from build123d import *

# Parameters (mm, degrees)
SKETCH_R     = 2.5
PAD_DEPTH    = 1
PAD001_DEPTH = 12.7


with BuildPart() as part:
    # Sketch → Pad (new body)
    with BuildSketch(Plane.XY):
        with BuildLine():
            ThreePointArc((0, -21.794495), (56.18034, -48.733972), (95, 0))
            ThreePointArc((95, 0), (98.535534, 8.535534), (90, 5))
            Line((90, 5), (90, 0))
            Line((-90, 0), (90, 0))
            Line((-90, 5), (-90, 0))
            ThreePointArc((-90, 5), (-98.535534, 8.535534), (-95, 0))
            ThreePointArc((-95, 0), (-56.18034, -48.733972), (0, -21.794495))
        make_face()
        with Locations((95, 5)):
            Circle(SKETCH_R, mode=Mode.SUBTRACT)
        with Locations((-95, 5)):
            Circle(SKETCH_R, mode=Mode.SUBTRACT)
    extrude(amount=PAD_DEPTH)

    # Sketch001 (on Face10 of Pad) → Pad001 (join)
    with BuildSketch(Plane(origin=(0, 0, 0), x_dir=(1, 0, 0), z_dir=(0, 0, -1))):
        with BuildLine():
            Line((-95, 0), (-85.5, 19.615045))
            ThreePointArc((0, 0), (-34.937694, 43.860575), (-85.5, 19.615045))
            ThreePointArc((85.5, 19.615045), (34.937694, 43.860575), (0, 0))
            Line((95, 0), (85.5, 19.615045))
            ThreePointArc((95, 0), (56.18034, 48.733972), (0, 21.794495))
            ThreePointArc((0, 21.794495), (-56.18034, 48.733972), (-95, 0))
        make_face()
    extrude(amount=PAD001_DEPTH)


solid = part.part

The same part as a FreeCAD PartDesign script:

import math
import FreeCAD as App
import Part
import Sketcher

V = App.Vector
Q = App.Units.Quantity

doc = App.newDocument("Part")
body = doc.addObject("PartDesign::Body", "Body")

sketch1 = body.newObject("Sketcher::SketchObject", "Sketch")
sketch1.AttachmentSupport = (doc.getObject("XY_Plane"), [""])
sketch1.MapMode = "FlatFace"
sketch1.addGeometry(Part.ArcOfCircle(Part.Circle(V(45, 0, 0), V(0, 0, 1), 50), math.radians(-154), math.radians(0)), False)
sketch1.addGeometry(Part.ArcOfCircle(Part.Circle(V(95, 5, 0), V(0, 0, 1), 5), math.radians(-90), math.radians(180)), False)
sketch1.addGeometry(Part.LineSegment(V(90, 5, 0), V(90, 0, 0)), False)
sketch1.addGeometry(Part.LineSegment(V(90, 0, 0), V(-90, 0, 0)), False)
sketch1.addGeometry(Part.LineSegment(V(-90, 0, 0), V(-90, 5, 0)), False)
sketch1.addGeometry(Part.ArcOfCircle(Part.Circle(V(-95, 5, 0), V(0, 0, 1), 5), math.radians(0), math.radians(270)), False)
sketch1.addGeometry(Part.ArcOfCircle(Part.Circle(V(-45, 0, 0), V(0, 0, 1), 50), math.radians(180), math.radians(334)), False)
sketch1.addGeometry(Part.Circle(V(-95, 5, 0), V(0, 0, 1), 2.5), False)
sketch1.addGeometry(Part.Circle(V(95, 5, 0), V(0, 0, 1), 2.5), False)
sketch1.addConstraint(Sketcher.Constraint("Coincident", 0, 2, 1, 1))
sketch1.addConstraint(Sketcher.Constraint("Tangent", 1, 2, 2, 1))
sketch1.addConstraint(Sketcher.Constraint("Coincident", 2, 2, 3, 1))
sketch1.addConstraint(Sketcher.Constraint("Coincident", 3, 2, 4, 1))
sketch1.addConstraint(Sketcher.Constraint("Tangent", 4, 2, 5, 1))
sketch1.addConstraint(Sketcher.Constraint("Coincident", 5, 2, 6, 1))
sketch1.addConstraint(Sketcher.Constraint("Coincident", 6, 2, 0, 1))
sketch1.addConstraint(Sketcher.Constraint("Vertical", 2))
sketch1.addConstraint(Sketcher.Constraint("Horizontal", 3))
sketch1.addConstraint(Sketcher.Constraint("Vertical", 4))
sketch1.addConstraint(Sketcher.Constraint("Coincident", 7, 3, 5, 3))
sketch1.addConstraint(Sketcher.Constraint("Coincident", 8, 3, 1, 3))
sketch1.addConstraint(Sketcher.Constraint("Equal", 1, 5))
sketch1.addConstraint(Sketcher.Constraint("Equal", 0, 6))
sketch1.addConstraint(Sketcher.Constraint("Equal", 7, 8))
sketch1.addConstraint(Sketcher.Constraint("Symmetric", 0, 3, 6, 3, -1, 1))
sketch1.addConstraint(Sketcher.Constraint("Symmetric", 2, 2, 3, 2, -1, 1))
sketch1.addConstraint(Sketcher.Constraint("PointOnObject", 0, 3, -1))
sketch1.addConstraint(Sketcher.Constraint("PointOnObject", 0, 2, -1))
sketch1.addConstraint(Sketcher.Constraint("PointOnObject", 5, 2, -1))
sketch1.addConstraint(Sketcher.Constraint("Vertical", 8, 3, 0, 2))
sketch1.addConstraint(Sketcher.Constraint("Diameter", 7, Q("5 mm")))
sketch1.addConstraint(Sketcher.Constraint("Radius", 0, Q("50 mm")))
sketch1.addConstraint(Sketcher.Constraint("Radius", 1, Q("5 mm")))
sketch1.addConstraint(Sketcher.Constraint("DistanceX", 3, 2, 3, 1, Q("180 mm")))
pad1 = body.newObject("PartDesign::Pad", "Pad")
pad1.Profile = sketch1
pad1.Length = 1

sketch2 = body.newObject("Sketcher::SketchObject", "Sketch001")
sketch2.AttachmentSupport = (doc.getObject("XY_Plane"), [""])
sketch2.MapMode = "FlatFace"
sketch2.addGeometry(Part.LineSegment(V(-95, 0, 0), V(-86, -20, 0)), False)
sketch2.addGeometry(Part.ArcOfCircle(Part.Circle(V(-45, 0, 0), V(0, 0, 1), 45), math.radians(-154), math.radians(0)), False)
sketch2.addGeometry(Part.ArcOfCircle(Part.Circle(V(45, 0, 0), V(0, 0, 1), 45), math.radians(180), math.radians(334)), False)
sketch2.addGeometry(Part.LineSegment(V(86, -20, 0), V(95, 0, 0)), False)
sketch2.addGeometry(Part.ArcOfCircle(Part.Circle(V(45, 0, 0), V(0, 0, 1), 50), math.radians(-154), math.radians(0)), False)
sketch2.addGeometry(Part.ArcOfCircle(Part.Circle(V(-45, 0, 0), V(0, 0, 1), 50), math.radians(180), math.radians(334)), False)
sketch2.addConstraint(Sketcher.Constraint("Tangent", 0, 2, 1, 1))
sketch2.addConstraint(Sketcher.Constraint("Tangent", 1, 2, 2, 1))
sketch2.addConstraint(Sketcher.Constraint("Tangent", 2, 2, 3, 1))
sketch2.addConstraint(Sketcher.Constraint("Coincident", 3, 2, 4, 2))
sketch2.addConstraint(Sketcher.Constraint("Coincident", 4, 1, 5, 2))
sketch2.addConstraint(Sketcher.Constraint("Coincident", 5, 1, 0, 1))
sketch2.addConstraint(Sketcher.Constraint("Coincident", 1, 2, -1, 1))
sketch2.addConstraint(Sketcher.Constraint("Coincident", 4, 3, 2, 3))
sketch2.addConstraint(Sketcher.Constraint("Coincident", 5, 3, 1, 3))
sketch2.addConstraint(Sketcher.Constraint("Equal", 1, 2))
sketch2.addConstraint(Sketcher.Constraint("Equal", 4, 5))
sketch2.addConstraint(Sketcher.Constraint("Symmetric", 0, 2, 2, 2, -2))
sketch2.addConstraint(Sketcher.Constraint("PointOnObject", 3, 2, -1))
sketch2.addConstraint(Sketcher.Constraint("Radius", 1, Q("45 mm")))
sketch2.addConstraint(Sketcher.Constraint("Radius", 4, Q("50 mm")))
pad2 = body.newObject("PartDesign::Pad", "Pad001")
pad2.Profile = sketch2
pad2.Length = 12.7
pad2.Reversed = True

doc.recompute()
